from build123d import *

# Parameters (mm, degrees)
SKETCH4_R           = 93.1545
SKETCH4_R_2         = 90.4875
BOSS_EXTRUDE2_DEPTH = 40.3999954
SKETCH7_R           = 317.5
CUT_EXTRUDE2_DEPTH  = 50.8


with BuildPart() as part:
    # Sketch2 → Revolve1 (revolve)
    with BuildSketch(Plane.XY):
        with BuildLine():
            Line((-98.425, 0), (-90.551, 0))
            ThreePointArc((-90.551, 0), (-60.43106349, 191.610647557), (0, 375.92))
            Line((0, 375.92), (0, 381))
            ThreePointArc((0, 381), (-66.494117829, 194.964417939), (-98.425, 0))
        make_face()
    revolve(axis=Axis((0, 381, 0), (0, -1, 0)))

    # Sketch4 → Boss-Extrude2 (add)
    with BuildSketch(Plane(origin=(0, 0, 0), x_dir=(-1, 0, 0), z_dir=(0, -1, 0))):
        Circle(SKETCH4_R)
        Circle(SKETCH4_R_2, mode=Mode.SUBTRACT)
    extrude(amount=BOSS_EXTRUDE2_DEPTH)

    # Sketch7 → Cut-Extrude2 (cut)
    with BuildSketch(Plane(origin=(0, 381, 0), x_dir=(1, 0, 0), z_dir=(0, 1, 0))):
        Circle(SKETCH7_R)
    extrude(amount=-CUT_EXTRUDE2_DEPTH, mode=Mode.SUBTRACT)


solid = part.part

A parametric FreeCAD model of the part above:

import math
import FreeCAD as App
import Part
import Sketcher
Q = App.Units.Quantity

doc = App.newDocument("Part")
params = doc.addObject("Spreadsheet::Sheet", "Params")
for row, (alias, value) in enumerate([
    ("sketch1_height", "0.2 in"),
    ("sketch1_width", "0.31 in"),
    ("revolution_angle", "360 deg"),
    ("sketch2_diameter", "7.335 in"),
    ("sketch2_diameter2", "7.125 in"),
    ("pad1_length", "40.399995 mm"),
    ("sketch3_diameter", "25 in"),
    ("pocket1_length", "2 in"),
], start=1):
    params.set(f"A{row}", alias)
    params.set(f"B{row}", "=" + value)
    params.setAlias(f"B{row}", alias)

body = doc.addObject("PartDesign::Body", "Body")

# Sketch on XY plane
sketch1 = body.newObject("Sketcher::SketchObject", "Sketch")
sketch1.AttachmentSupport = (doc.getObject("XY_Plane"), [""])
sketch1.MapMode = "FlatFace"
sketch1.addGeometry(Part.LineSegment(App.Vector(-98, 0, 0), App.Vector(-91, 0, 0)), False)
sketch1.addGeometry(Part.ArcOfCircle(Part.Circle(App.Vector(1113, -91, 0), App.Vector(0, 0, 1), 1207), math.radians(157.24), math.radians(175.68)), False)
sketch1.addGeometry(Part.LineSegment(App.Vector(0, 376, 0), App.Vector(0, 381, 0)), False)
sketch1.addGeometry(Part.ArcOfCircle(Part.Circle(App.Vector(992, -79, 0), App.Vector(0, 0, 1), 1093), math.radians(155), math.radians(176)), False)
sketch1.addConstraint(Sketcher.Constraint("Coincident", 0, 2, 1, 2))
sketch1.addConstraint(Sketcher.Constraint("Coincident", 1, 1, 2, 1))
sketch1.addConstraint(Sketcher.Constraint("Coincident", 2, 2, 3, 1))
sketch1.addConstraint(Sketcher.Constraint("Coincident", 3, 2, 0, 1))
sketch1.addConstraint(Sketcher.Constraint("Horizontal", 0))
sketch1.addConstraint(Sketcher.Constraint("Vertical", 2))
sketch1.addConstraint(Sketcher.Constraint("PointOnObject", 0, 2, -1))
sketch1.addConstraint(Sketcher.Constraint("PointOnObject", 2, 2, -2))
sketch1.addConstraint(Sketcher.Constraint("DistanceY", 2, 1, 2, 2, Q("0.2 in")))
sketch1.addConstraint(Sketcher.Constraint("DistanceY", -1, 1, 2, 2, Q("15 in")))
sketch1.addConstraint(Sketcher.Constraint("DistanceX", 0, 1, 0, 2, Q("0.31 in")))
sketch1.addConstraint(Sketcher.Constraint("DistanceX", 0, 2, -1, 1, Q("3.565 in")))
sketch1.addConstraint(Sketcher.Constraint("Radius", 3, Q("1093.360828 mm")))
sketch1.addConstraint(Sketcher.Constraint("Radius", 1, Q("1206.675912 mm")))
sketch1.setExpression("Constraints[8]", "Params.sketch1_height")
sketch1.setExpression("Constraints[10]", "Params.sketch1_width")
revolution = body.newObject("PartDesign::Revolution", "Revolution")
revolution.Profile = sketch1
revolution.ReferenceAxis = (sketch1, ["V_Axis"])
revolution.setExpression("Angle", "Params.revolution_angle")

# Sketch on XZ plane
sketch2 = body.newObject("Sketcher::SketchObject", "Sketch001")
sketch2.AttachmentSupport = (doc.getObject("XZ_Plane"), [""])
sketch2.MapMode = "FlatFace"
sketch2.addGeometry(Part.Circle(App.Vector(0, 0, 0), App.Vector(0, 0, 1), 93), False)
sketch2.addGeometry(Part.Circle(App.Vector(0, 0, 0), App.Vector(0, 0, 1), 90), False)
sketch2.addConstraint(Sketcher.Constraint("Coincident", 0, 3, -1, 1))
sketch2.addConstraint(Sketcher.Constraint("Coincident", 1, 3, -1, 1))
sketch2.addConstraint(Sketcher.Constraint("Diameter", 0, Q("7.335 in")))
sketch2.addConstraint(Sketcher.Constraint("Diameter", 1, Q("7.125 in")))
sketch2.setExpression("Constraints[2]", "Params.sketch2_diameter")
sketch2.setExpression("Constraints[3]", "Params.sketch2_diameter2")
pad1 = body.newObject("PartDesign::Pad", "Pad")
pad1.Profile = sketch2
pad1.setExpression("Length", "Params.pad1_length")

# Sketch on XZ plane
sketch3 = body.newObject("Sketcher::SketchObject", "Sketch002")
sketch3.AttachmentSupport = (doc.getObject("XZ_Plane"), [""])
sketch3.MapMode = "FlatFace"
sketch3.AttachmentOffset = App.Placement(App.Vector(0, 0, -15 * 25.4), App.Rotation())
sketch3.addGeometry(Part.Circle(App.Vector(0, 0, 0), App.Vector(0, 0, 1), 318), False)
sketch3.addConstraint(Sketcher.Constraint("Coincident", 0, 3, -1, 1))
sketch3.addConstraint(Sketcher.Constraint("Diameter", 0, Q("25 in")))
sketch3.setExpression("Constraints[1]", "Params.sketch3_diameter")
pocket1 = body.newObject("PartDesign::Pocket", "Pocket")
pocket1.Profile = sketch3
pocket1.setExpression("Length", "Params.pocket1_length")
pocket1.Reversed = True

doc.recompute()
